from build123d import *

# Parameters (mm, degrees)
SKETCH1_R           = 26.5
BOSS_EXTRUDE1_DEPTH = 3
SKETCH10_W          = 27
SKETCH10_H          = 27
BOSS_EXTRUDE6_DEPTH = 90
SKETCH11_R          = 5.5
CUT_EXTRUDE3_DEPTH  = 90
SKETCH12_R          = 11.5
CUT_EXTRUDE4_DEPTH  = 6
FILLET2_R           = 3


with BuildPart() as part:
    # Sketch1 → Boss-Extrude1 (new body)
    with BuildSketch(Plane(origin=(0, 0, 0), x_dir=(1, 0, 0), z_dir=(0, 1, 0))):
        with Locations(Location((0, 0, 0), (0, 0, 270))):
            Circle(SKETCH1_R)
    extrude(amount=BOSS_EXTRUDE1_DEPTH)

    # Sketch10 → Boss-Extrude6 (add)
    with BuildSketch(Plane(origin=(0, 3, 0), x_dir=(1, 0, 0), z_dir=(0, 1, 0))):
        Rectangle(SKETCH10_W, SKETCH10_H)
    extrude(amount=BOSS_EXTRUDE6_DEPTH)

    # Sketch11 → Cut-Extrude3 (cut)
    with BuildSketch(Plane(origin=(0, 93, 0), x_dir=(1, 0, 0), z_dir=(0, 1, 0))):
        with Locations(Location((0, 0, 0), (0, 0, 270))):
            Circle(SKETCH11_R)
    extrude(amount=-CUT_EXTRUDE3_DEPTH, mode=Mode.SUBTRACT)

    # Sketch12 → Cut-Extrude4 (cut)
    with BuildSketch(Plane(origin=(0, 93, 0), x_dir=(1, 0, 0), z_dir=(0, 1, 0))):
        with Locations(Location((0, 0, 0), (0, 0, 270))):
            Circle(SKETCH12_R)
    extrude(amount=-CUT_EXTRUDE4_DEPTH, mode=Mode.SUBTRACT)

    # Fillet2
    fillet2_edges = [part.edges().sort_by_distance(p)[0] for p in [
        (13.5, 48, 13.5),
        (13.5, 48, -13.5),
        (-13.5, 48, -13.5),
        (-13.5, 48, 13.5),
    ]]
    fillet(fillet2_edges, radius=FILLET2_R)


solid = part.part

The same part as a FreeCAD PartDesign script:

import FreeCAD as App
import Part
import Sketcher
from FreeCAD import Vector


def edges_at(feature, points):
    """Names of the edges that pass closest to the given points."""
    edges = feature.Shape.Edges
    near = lambda p: min(range(len(edges)), key=lambda i: edges[i].distToShape(Part.Vertex(*p))[0])
    return sorted({f"Edge{near(p) + 1}" for p in points})


def add_polygon(sketch, points):
    """Adds a closed chain of lines whose ends are joined by coincident constraints."""
    first, n = sketch.GeometryCount, len(points)
    for a, b in zip(points, points[1:] + points[:1]):
        sketch.addGeometry(Part.LineSegment(App.Vector(*a, 0), App.Vector(*b, 0)), False)
    for i in range(n):
        sketch.addConstraint(Sketcher.Constraint("Coincident", first + i, 2, first + (i + 1) % n, 1))

doc = App.newDocument("Part")
body = doc.addObject("PartDesign::Body", "Body")

sketch1 = body.newObject("Sketcher::SketchObject", "Sketch")
sketch1.AttachmentSupport = (doc.getObject("XZ_Plane"), [""])
sketch1.MapMode = "FlatFace"
sketch1.addGeometry(Part.Circle(Vector(0, 0, 0), Vector(0, 0, 1), 26), False)
sketch1.addConstraint([
    Sketcher.Constraint("Coincident", 0, 3, -1, 1),
    Sketcher.Constraint("Diameter", 0, 53.0),
])
pad1 = body.newObject("PartDesign::Pad", "Pad")
pad1.Profile = sketch1
pad1.Length = 3
pad1.Reversed = True

sketch2 = body.newObject("Sketcher::SketchObject", "Sketch001")
sketch2.AttachmentSupport = (doc.getObject("XZ_Plane"), [""])
sketch2.MapMode = "FlatFace"
sketch2.AttachmentOffset = App.Placement(Vector(0, 0, -3), App.Rotation())
add_polygon(sketch2, [(-14, -14), (-14, 14), (14, 14), (14, -14)])
sketch2.addConstraint([
    Sketcher.Constraint("Vertical", 0),
    Sketcher.Constraint("Horizontal", 1),
    Sketcher.Constraint("Vertical", 2),
    Sketcher.Constraint("Horizontal", 3),
    Sketcher.Constraint("Symmetric", 0, 2, 2, 2, -1, 1),
    Sketcher.Constraint("Equal", 3, 0),
    Sketcher.Constraint("DistanceX", 1, 1, 1, 2, 27.0),
])
pad2 = body.newObject("PartDesign::Pad", "Pad001")
pad2.Profile = sketch2
pad2.Length = 90
pad2.Reversed = True

sketch3 = body.newObject("Sketcher::SketchObject", "Sketch002")
sketch3.AttachmentSupport = (doc.getObject("XZ_Plane"), [""])
sketch3.MapMode = "FlatFace"
sketch3.AttachmentOffset = App.Placement(Vector(0, 0, -93), App.Rotation())
sketch3.addGeometry(Part.Circle(Vector(0, 0, 0), Vector(0, 0, 1), 6), False)
sketch3.addConstraint([
    Sketcher.Constraint("Coincident", 0, 3, -1, 1),
    Sketcher.Constraint("Diameter", 0, 11.0),
])
pocket1 = body.newObject("PartDesign::Pocket", "Pocket")
pocket1.Profile = sketch3
pocket1.Length = 90
pocket1.Reversed = True

sketch4 = body.newObject("Sketcher::SketchObject", "Sketch003")
sketch4.AttachmentSupport = (doc.getObject("XZ_Plane"), [""])
sketch4.MapMode = "FlatFace"
sketch4.AttachmentOffset = App.Placement(Vector(0, 0, -93), App.Rotation())
sketch4.addGeometry(Part.Circle(Vector(0, 0, 0), Vector(0, 0, 1), 12), False)
sketch4.addConstraint([
    Sketcher.Constraint("Coincident", 0, 3, -1, 1),
    Sketcher.Constraint("Diameter", 0, 23.0),
])
pocket2 = body.newObject("PartDesign::Pocket", "Pocket001")
pocket2.Profile = sketch4
pocket2.Length = 6
pocket2.Reversed = True
doc.recompute()

fillet = body.newObject("PartDesign::Fillet", "Fillet")
fillet.Base = (pocket2, edges_at(pocket2, [
    (13.5, 48, 13.5),
    (13.5, 48, -13.5),
    (-13.5, 48, -13.5),
    (-13.5, 48, 13.5),
]))
fillet.Radius = 3

doc.recompute()
